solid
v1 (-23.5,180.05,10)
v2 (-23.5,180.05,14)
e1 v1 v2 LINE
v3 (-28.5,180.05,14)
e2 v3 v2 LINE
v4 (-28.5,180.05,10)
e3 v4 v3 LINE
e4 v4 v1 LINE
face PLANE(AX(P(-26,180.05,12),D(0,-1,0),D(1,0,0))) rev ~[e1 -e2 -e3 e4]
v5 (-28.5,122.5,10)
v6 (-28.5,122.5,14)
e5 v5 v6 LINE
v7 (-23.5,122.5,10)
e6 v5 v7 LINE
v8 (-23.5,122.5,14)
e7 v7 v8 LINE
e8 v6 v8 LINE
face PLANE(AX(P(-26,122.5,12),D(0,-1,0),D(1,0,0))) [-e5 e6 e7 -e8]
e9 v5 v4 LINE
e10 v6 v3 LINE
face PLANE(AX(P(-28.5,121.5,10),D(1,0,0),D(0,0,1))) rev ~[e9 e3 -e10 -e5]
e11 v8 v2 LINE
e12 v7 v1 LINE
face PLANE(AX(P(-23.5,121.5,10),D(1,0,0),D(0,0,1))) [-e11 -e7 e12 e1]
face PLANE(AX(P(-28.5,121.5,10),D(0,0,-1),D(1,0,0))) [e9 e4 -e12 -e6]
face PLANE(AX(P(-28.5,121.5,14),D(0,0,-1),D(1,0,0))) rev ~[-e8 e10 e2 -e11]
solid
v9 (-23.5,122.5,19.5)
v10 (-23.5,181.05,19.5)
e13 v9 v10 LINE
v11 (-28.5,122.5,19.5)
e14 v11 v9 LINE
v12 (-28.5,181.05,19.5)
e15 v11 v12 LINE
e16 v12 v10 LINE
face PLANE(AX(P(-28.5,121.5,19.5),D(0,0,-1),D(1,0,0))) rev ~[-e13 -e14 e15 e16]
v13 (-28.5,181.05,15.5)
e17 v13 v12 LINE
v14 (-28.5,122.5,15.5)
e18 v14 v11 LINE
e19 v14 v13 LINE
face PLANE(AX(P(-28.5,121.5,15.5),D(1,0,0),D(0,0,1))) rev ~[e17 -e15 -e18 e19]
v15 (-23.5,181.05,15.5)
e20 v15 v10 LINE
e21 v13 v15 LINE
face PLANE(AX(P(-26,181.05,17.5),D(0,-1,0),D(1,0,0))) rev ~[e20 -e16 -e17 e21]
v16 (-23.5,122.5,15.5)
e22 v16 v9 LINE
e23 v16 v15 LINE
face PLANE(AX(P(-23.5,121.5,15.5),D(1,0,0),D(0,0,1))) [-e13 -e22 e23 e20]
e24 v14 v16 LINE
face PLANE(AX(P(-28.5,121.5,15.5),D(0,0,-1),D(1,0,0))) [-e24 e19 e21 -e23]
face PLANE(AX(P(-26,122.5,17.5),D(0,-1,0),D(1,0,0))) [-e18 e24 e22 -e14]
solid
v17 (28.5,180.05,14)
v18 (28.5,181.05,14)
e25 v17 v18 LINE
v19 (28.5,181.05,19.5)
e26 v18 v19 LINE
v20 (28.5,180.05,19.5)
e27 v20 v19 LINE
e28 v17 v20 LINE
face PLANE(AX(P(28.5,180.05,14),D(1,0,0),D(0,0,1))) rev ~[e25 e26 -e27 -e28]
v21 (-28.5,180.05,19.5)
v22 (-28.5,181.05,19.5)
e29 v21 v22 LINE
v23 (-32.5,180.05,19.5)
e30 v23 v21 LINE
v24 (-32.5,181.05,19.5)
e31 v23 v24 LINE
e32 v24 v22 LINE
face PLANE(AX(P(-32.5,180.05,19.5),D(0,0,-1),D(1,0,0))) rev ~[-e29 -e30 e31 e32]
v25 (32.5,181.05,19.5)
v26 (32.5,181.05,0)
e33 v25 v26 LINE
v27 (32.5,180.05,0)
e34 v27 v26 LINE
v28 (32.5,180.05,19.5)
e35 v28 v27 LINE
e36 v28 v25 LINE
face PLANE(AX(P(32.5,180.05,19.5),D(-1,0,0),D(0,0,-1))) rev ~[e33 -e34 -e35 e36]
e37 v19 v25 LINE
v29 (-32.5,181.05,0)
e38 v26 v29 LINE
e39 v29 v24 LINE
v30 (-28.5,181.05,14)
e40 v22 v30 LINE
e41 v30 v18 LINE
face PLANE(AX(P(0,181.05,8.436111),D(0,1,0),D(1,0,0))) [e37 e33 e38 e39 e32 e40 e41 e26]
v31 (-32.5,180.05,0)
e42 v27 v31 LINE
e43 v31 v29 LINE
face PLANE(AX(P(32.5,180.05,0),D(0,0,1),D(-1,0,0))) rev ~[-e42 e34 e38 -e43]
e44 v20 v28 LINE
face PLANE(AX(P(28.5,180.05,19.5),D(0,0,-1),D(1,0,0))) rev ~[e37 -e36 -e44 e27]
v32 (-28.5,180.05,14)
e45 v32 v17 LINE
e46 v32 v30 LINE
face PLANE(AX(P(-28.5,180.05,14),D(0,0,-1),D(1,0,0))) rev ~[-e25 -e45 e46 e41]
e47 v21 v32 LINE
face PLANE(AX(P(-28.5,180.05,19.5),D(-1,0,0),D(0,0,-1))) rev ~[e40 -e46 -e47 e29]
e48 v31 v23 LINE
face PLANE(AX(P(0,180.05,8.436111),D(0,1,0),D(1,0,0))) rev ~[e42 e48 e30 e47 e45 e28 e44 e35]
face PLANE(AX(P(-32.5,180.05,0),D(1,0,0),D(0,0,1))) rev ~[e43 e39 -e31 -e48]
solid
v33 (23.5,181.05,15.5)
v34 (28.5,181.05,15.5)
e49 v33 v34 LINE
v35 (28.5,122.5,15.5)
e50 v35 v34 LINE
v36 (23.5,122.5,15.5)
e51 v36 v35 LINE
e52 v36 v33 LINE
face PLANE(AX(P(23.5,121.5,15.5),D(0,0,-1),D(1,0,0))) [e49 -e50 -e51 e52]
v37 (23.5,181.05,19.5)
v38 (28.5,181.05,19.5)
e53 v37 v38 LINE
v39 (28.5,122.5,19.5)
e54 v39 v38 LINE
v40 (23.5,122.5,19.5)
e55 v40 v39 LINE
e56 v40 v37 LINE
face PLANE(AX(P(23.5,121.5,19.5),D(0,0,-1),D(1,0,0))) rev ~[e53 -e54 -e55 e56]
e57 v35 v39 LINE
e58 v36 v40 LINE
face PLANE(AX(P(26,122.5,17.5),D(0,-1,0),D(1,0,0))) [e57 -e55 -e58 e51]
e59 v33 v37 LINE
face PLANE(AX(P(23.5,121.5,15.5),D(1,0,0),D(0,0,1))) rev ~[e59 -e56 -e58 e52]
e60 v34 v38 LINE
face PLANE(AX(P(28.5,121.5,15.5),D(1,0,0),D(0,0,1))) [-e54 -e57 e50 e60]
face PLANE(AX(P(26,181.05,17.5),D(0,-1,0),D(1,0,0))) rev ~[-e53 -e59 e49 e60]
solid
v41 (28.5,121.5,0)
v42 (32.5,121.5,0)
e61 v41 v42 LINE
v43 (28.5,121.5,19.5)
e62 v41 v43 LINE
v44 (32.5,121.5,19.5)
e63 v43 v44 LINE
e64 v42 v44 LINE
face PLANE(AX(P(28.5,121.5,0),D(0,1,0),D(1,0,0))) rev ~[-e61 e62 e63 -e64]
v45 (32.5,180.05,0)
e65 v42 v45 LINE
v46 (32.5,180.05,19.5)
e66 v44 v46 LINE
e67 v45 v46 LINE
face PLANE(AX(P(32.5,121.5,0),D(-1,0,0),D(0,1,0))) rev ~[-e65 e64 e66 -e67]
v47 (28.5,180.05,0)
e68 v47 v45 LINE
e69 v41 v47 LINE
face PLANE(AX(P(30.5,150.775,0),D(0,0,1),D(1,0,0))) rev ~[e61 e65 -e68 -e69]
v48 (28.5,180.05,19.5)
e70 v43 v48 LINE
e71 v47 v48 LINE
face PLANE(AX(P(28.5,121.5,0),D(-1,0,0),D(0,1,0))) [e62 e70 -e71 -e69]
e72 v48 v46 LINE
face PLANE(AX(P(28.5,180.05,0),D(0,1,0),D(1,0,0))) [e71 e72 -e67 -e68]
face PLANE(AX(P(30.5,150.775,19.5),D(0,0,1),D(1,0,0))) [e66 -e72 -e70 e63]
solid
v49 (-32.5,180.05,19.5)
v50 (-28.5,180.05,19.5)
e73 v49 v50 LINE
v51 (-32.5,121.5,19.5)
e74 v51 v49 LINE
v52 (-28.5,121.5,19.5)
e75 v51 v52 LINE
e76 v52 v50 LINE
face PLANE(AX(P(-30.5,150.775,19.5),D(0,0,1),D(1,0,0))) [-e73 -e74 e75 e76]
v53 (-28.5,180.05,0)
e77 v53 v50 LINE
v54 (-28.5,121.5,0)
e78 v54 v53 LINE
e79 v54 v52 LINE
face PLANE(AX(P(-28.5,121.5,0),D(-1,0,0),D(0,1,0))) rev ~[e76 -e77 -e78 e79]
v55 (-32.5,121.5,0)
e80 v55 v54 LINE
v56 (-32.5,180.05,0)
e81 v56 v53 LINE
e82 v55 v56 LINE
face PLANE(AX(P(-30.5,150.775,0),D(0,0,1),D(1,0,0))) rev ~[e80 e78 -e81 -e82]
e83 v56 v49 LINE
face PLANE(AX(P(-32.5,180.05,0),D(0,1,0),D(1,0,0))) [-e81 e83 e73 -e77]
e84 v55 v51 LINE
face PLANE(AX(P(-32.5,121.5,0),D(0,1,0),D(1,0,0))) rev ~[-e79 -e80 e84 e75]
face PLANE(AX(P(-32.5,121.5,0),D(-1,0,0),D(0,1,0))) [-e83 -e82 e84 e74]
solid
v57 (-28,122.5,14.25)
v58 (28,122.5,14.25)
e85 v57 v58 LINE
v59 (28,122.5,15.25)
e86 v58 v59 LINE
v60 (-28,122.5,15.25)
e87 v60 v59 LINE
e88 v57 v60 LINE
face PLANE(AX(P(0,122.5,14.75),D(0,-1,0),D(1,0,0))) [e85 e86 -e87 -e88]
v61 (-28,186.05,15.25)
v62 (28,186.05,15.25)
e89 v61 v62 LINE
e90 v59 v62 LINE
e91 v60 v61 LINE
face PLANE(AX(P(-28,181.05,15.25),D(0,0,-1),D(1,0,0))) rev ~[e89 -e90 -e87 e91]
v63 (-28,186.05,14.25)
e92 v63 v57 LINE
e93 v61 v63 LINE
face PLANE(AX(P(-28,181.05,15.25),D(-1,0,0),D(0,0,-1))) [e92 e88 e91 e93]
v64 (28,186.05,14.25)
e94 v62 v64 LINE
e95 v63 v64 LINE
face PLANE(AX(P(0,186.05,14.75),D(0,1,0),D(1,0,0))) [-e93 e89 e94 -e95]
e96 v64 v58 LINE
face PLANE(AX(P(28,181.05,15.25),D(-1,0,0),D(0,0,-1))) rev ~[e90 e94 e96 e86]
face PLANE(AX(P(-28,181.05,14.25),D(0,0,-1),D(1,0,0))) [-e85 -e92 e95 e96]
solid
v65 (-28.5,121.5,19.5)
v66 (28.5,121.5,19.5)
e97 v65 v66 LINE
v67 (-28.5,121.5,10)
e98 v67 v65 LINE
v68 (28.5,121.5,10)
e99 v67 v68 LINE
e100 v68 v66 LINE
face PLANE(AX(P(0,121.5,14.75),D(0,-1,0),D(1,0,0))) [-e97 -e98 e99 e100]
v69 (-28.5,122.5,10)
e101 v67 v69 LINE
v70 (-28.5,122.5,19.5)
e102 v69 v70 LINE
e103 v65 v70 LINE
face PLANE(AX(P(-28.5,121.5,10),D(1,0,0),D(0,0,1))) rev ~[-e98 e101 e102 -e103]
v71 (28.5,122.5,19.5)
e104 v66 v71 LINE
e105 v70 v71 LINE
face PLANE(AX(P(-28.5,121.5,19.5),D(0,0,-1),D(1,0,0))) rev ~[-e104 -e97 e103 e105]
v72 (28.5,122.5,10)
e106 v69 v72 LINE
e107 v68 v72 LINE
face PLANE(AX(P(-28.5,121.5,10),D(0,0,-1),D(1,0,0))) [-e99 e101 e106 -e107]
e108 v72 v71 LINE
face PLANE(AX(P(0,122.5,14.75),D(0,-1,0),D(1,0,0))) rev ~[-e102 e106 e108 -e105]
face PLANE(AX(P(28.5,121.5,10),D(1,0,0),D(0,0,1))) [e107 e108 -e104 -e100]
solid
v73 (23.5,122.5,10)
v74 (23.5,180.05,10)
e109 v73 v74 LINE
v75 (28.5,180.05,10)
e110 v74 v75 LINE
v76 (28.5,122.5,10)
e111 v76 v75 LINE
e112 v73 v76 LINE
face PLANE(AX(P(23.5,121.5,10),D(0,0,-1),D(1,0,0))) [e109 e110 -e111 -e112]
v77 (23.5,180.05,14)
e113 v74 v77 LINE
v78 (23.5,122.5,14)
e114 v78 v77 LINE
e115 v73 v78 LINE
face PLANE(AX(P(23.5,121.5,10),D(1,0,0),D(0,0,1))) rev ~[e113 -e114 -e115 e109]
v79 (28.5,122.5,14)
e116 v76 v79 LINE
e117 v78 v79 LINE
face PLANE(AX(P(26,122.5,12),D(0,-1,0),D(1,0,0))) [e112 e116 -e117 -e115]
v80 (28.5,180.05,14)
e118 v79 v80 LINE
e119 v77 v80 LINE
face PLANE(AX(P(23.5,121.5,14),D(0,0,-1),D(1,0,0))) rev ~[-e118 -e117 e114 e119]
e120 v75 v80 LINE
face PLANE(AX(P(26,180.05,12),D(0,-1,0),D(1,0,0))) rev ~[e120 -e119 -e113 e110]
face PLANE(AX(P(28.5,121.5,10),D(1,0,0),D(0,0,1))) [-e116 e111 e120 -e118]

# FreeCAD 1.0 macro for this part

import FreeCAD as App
import Part
import Sketcher


def add_polygon(sketch, points):
    """Adds a closed chain of lines whose ends are joined by coincident constraints."""
    first, n = sketch.GeometryCount, len(points)
    for a, b in zip(points, points[1:] + points[:1]):
        sketch.addGeometry(Part.LineSegment(App.Vector(*a, 0), App.Vector(*b, 0)), False)
    for i in range(n):
        sketch.addConstraint(Sketcher.Constraint("Coincident", first + i, 2, first + (i + 1) % n, 1))

doc = App.newDocument("Part")
body = doc.addObject("PartDesign::Body", "Body")

# Sketch on XY plane
sketch1 = body.newObject("Sketcher::SketchObject", "Sketch")
sketch1.AttachmentSupport = (doc.getObject("XY_Plane"), [""])
sketch1.MapMode = "FlatFace"
add_polygon(sketch1, [(-32.5, 180.1), (-32.5, 121.5), (-28.5, 121.5), (-28.5, 180.1)])  # lines 0-3
sketch1.addConstraint([
    Sketcher.Constraint("Vertical", 0),
    Sketcher.Constraint("Horizontal", 1),
    Sketcher.Constraint("Vertical", 2),
    Sketcher.Constraint("Horizontal", 3),
    Sketcher.Constraint("DistanceX", 1, 1, 1, 2, 4.0),
    Sketcher.Constraint("DistanceY", 0, 2, 0, 1, 58.55),
    Sketcher.Constraint("DistanceX", 0, 2, -1, 1, 32.5),
    Sketcher.Constraint("DistanceY", -1, 1, 0, 2, 121.5),
])
pad1 = body.newObject("PartDesign::Pad", "Pad")
pad1.Profile = sketch1
pad1.Length = 19.5
body2 = doc.addObject("PartDesign::Body", "Body001")

# Sketch on XY plane
sketch2 = body2.newObject("Sketcher::SketchObject", "Sketch001")
sketch2.AttachmentSupport = (doc.getObject("XY_Plane001"), [""])
sketch2.MapMode = "FlatFace"
add_polygon(sketch2, [(28.5, 180.1), (28.5, 121.5), (32.5, 121.5), (32.5, 180.1)])  # lines 0-3
sketch2.addConstraint([
    Sketcher.Constraint("Vertical", 0),
    Sketcher.Constraint("Horizontal", 1),
    Sketcher.Constraint("Vertical", 2),
    Sketcher.Constraint("Horizontal", 3),
    Sketcher.Constraint("DistanceX", 1, 1, 1, 2, 4.0),
    Sketcher.Constraint("DistanceY", 0, 2, 0, 1, 58.55),
    Sketcher.Constraint("DistanceX", -1, 1, 0, 2, 28.5),
    Sketcher.Constraint("DistanceY", -1, 1, 0, 2, 121.5),
])
pad2 = body2.newObject("PartDesign::Pad", "Pad001")
pad2.Profile = sketch2
pad2.Length = 19.5
body3 = doc.addObject("PartDesign::Body", "Body002")

# Sketch on XZ plane
sketch3 = body3.newObject("Sketcher::SketchObject", "Sketch002")
sketch3.AttachmentSupport = (doc.getObject("XZ_Plane002"), [""])
sketch3.MapMode = "FlatFace"
sketch3.AttachmentOffset = App.Placement(App.Vector(0, 0, -180.05), App.Rotation())
add_polygon(sketch3, [(-32.5, 0), (-32.5, 19.5), (-28.5, 19.5), (-28.5, 14), (28.5, 14), (28.5, 19.5), (32.5, 19.5), (32.5, 0)])  # lines 0-7
sketch3.addConstraint([
    Sketcher.Constraint("Vertical", 0),
    Sketcher.Constraint("Horizontal", 1),
    Sketcher.Constraint("Vertical", 2),
    Sketcher.Constraint("Horizontal", 3),
    Sketcher.Constraint("Vertical", 4),
    Sketcher.Constraint("Horizontal", 5),
    Sketcher.Constraint("Vertical", 6),
    Sketcher.Constraint("Horizontal", 7),
    Sketcher.Constraint("Symmetric", 6, 2, 7, 2, -1, 1),
    Sketcher.Constraint("Symmetric", 1, 2, 4, 2, -2),
    Sketcher.Constraint("DistanceX", 1, 1, 1, 2, 4.0),
    Sketcher.Constraint("DistanceX", 3, 1, 3, 2, 57.0),
    Sketcher.Constraint("DistanceY", 0, 1, 0, 2, 19.5),
    Sketcher.Constraint("DistanceY", 2, 2, 2, 1, 5.5),
])
pad3 = body3.newObject("PartDesign::Pad", "Pad002")
pad3.Profile = sketch3
pad3.Length = 1
pad3.Reversed = True
body4 = doc.addObject("PartDesign::Body", "Body003")

# Sketch on XZ plane
sketch4 = body4.newObject("Sketcher::SketchObject", "Sketch003")
sketch4.AttachmentSupport = (doc.getObject("XZ_Plane003"), [""])
sketch4.MapMode = "FlatFace"
sketch4.AttachmentOffset = App.Placement(App.Vector(0, 0, -121.5), App.Rotation())
add_polygon(sketch4, [(-28.5, 14), (-28.5, 10), (-23.5, 10), (-23.5, 14)])  # lines 0-3
sketch4.addConstraint([
    Sketcher.Constraint("Vertical", 0),
    Sketcher.Constraint("Horizontal", 1),
    Sketcher.Constraint("Vertical", 2),
    Sketcher.Constraint("Horizontal", 3),
    Sketcher.Constraint("DistanceX", 1, 1, 1, 2, 5.0),
    Sketcher.Constraint("DistanceY", 0, 2, 0, 1, 4.0),
    Sketcher.Constraint("DistanceY", -1, 1, 0, 2, 10.0),
    Sketcher.Constraint("DistanceX", 0, 2, -1, 1, 28.5),
])
pad4 = body4.newObject("PartDesign::Pad", "Pad003")
pad4.Profile = sketch4
pad4.Length = 58.55
pad4.Reversed = True
body5 = doc.addObject("PartDesign::Body", "Body004")

# Sketch on XZ plane
sketch5 = body5.newObject("Sketcher::SketchObject", "Sketch004")
sketch5.AttachmentSupport = (doc.getObject("XZ_Plane004"), [""])
sketch5.MapMode = "FlatFace"
sketch5.AttachmentOffset = App.Placement(App.Vector(0, 0, -121.5), App.Rotation())
add_polygon(sketch5, [(23.5, 14), (23.5, 10), (28.5, 10), (28.5, 14)])  # lines 0-3
sketch5.addConstraint([
    Sketcher.Constraint("Vertical", 0),
    Sketcher.Constraint("Horizontal", 1),
    Sketcher.Constraint("Vertical", 2),
    Sketcher.Constraint("Horizontal", 3),
    Sketcher.Constraint("DistanceX", 1, 1, 1, 2, 5.0),
    Sketcher.Constraint("DistanceY", 0, 2, 0, 1, 4.0),
    Sketcher.Constraint("DistanceY", -1, 1, 0, 2, 10.0),
    Sketcher.Constraint("DistanceX", -1, 1, 0, 2, 23.5),
])
pad5 = body5.newObject("PartDesign::Pad", "Pad004")
pad5.Profile = sketch5
pad5.Length = 58.55
pad5.Reversed = True
body6 = doc.addObject("PartDesign::Body", "Body005")

# Sketch on XZ plane
sketch6 = body6.newObject("Sketcher::SketchObject", "Sketch005")
sketch6.AttachmentSupport = (doc.getObject("XZ_Plane005"), [""])
sketch6.MapMode = "FlatFace"
sketch6.AttachmentOffset = App.Placement(App.Vector(0, 0, -121.5), App.Rotation())
add_polygon(sketch6, [(-28.5, 19.5), (-28.5, 15.5), (-23.5, 15.5), (-23.5, 19.5)])  # lines 0-3
sketch6.addConstraint([
    Sketcher.Constraint("Vertical", 0),
    Sketcher.Constraint("Horizontal", 1),
    Sketcher.Constraint("Vertical", 2),
    Sketcher.Constraint("Horizontal", 3),
    Sketcher.Constraint("DistanceX", 1, 1, 1, 2, 5.0),
    Sketcher.Constraint("DistanceY", 0, 2, 0, 1, 4.0),
    Sketcher.Constraint("DistanceX", 0, 2, -1, 1, 28.5),
    Sketcher.Constraint("DistanceY", -1, 1, 0, 2, 15.5),
])
pad6 = body6.newObject("PartDesign::Pad", "Pad005")
pad6.Profile = sketch6
pad6.Length = 59.55
pad6.Reversed = True
body7 = doc.addObject("PartDesign::Body", "Body006")

# Sketch on XZ plane
sketch7 = body7.newObject("Sketcher::SketchObject", "Sketch006")
sketch7.AttachmentSupport = (doc.getObject("XZ_Plane006"), [""])
sketch7.MapMode = "FlatFace"
sketch7.AttachmentOffset = App.Placement(App.Vector(0, 0, -121.5), App.Rotation())
add_polygon(sketch7, [(23.5, 19.5), (23.5, 15.5), (28.5, 15.5), (28.5, 19.5)])  # lines 0-3
sketch7.addConstraint([
    Sketcher.Constraint("Vertical", 0),
    Sketcher.Constraint("Horizontal", 1),
    Sketcher.Constraint("Vertical", 2),
    Sketcher.Constraint("Horizontal", 3),
    Sketcher.Constraint("DistanceX", 1, 1, 1, 2, 5.0),
    Sketcher.Constraint("DistanceY", 0, 2, 0, 1, 4.0),
    Sketcher.Constraint("DistanceX", -1, 1, 0, 2, 23.5),
    Sketcher.Constraint("DistanceY", -1, 1, 0, 2, 15.5),
])
pad7 = body7.newObject("PartDesign::Pad", "Pad006")
pad7.Profile = sketch7
pad7.Length = 59.55
pad7.Reversed = True
body8 = doc.addObject("PartDesign::Body", "Body007")

# Sketch on XZ plane
sketch8 = body8.newObject("Sketcher::SketchObject", "Sketch007")
sketch8.AttachmentSupport = (doc.getObject("XZ_Plane007"), [""])
sketch8.MapMode = "FlatFace"
sketch8.AttachmentOffset = App.Placement(App.Vector(0, 0, -181.05), App.Rotation())
add_polygon(sketch8, [(-28, 14.2), (-28, 15.2), (28, 15.2), (28, 14.2)])  # lines 0-3
sketch8.addConstraint([
    Sketcher.Constraint("Vertical", 0),
    Sketcher.Constraint("Horizontal", 1),
    Sketcher.Constraint("Vertical", 2),
    Sketcher.Constraint("Horizontal", 3),
    Sketcher.Constraint("DistanceX", 1, 1, 1, 2, 56.0),
    Sketcher.Constraint("DistanceY", 0, 1, 0, 2, 1.0),
    Sketcher.Constraint("DistanceX", 0, 2, -1, 1, 28.0),
    Sketcher.Constraint("DistanceY", -1, 1, 0, 2, 15.25),
])
pad8 = body8.newObject("PartDesign::Pad", "Pad007")
pad8.Profile = sketch8
pad8.Length = 59.55

# Sketch on XZ plane
sketch9 = body8.newObject("Sketcher::SketchObject", "Sketch008")
sketch9.AttachmentSupport = (doc.getObject("XZ_Plane007"), [""])
sketch9.MapMode = "FlatFace"
sketch9.AttachmentOffset = App.Placement(App.Vector(0, 0, -181.05), App.Rotation())
add_polygon(sketch9, [(-28, 14.2), (-28, 15.2), (28, 15.2), (28, 14.2)])  # lines 0-3
sketch9.addConstraint([
    Sketcher.Constraint("Vertical", 0),
    Sketcher.Constraint("Horizontal", 1),
    Sketcher.Constraint("Vertical", 2),
    Sketcher.Constraint("Horizontal", 3),
    Sketcher.Constraint("DistanceX", 1, 1, 1, 2, 56.0),
    Sketcher.Constraint("DistanceY", 0, 1, 0, 2, 1.0),
    Sketcher.Constraint("DistanceX", 0, 2, -1, 1, 28.0),
    Sketcher.Constraint("DistanceY", -1, 1, 0, 2, 15.25),
])
pad9 = body8.newObject("PartDesign::Pad", "Pad008")
pad9.Profile = sketch9
pad9.Length = 5
pad9.Reversed = True

# Sketch on XZ plane
sketch10 = body8.newObject("Sketcher::SketchObject", "Sketch009")
sketch10.AttachmentSupport = (doc.getObject("XZ_Plane007"), [""])
sketch10.MapMode = "FlatFace"
sketch10.AttachmentOffset = App.Placement(App.Vector(0, 0, -121.5), App.Rotation())
add_polygon(sketch10, [(-28, 15.2), (-28, 14.2), (28, 14.2), (28, 15.2)])  # lines 0-3
sketch10.addConstraint([
    Sketcher.Constraint("Vertical", 0),
    Sketcher.Constraint("Horizontal", 1),
    Sketcher.Constraint("Vertical", 2),
    Sketcher.Constraint("Horizontal", 3),
    Sketcher.Constraint("DistanceX", 1, 1, 1, 2, 56.0),
    Sketcher.Constraint("DistanceY", 0, 2, 0, 1, 1.0),
    Sketcher.Constraint("DistanceX", 0, 2, -1, 1, 28.0),
    Sketcher.Constraint("DistanceY", -1, 1, 0, 2, 14.25),
])
pocket1 = body8.newObject("PartDesign::Pocket", "Pocket")
pocket1.Profile = sketch10
pocket1.Length = 1
body9 = doc.addObject("PartDesign::Body", "Body008")
body9.AllowCompound = True

# Sketch on XZ plane
sketch11 = body9.newObject("Sketcher::SketchObject", "Sketch010")
sketch11.AttachmentSupport = (doc.getObject("XZ_Plane008"), [""])
sketch11.MapMode = "FlatFace"
sketch11.AttachmentOffset = App.Placement(App.Vector(0, 0, -121.5), App.Rotation())
add_polygon(sketch11, [(-28.5, 19.5), (-28.5, 15.5), (-23.5, 15.5), (-23.5, 19.5)])  # lines 0-3
add_polygon(sketch11, [(-28.5, 14), (-28.5, 10), (-23.5, 10), (-23.5, 14)])  # lines 4-7
add_polygon(sketch11, [(23.5, 14), (23.5, 10), (28.5, 10), (28.5, 14)])  # lines 8-11
add_polygon(sketch11, [(23.5, 19.5), (23.5, 15.5), (28.5, 15.5), (28.5, 19.5)])  # lines 12-15
sketch11.addConstraint([
    Sketcher.Constraint("Vertical", 0),
    Sketcher.Constraint("Horizontal", 1),
    Sketcher.Constraint("Vertical", 2),
    Sketcher.Constraint("Horizontal", 3),
    Sketcher.Constraint("Vertical", 4),
    Sketcher.Constraint("Horizontal", 5),
    Sketcher.Constraint("Vertical", 6),
    Sketcher.Constraint("Horizontal", 7),
    Sketcher.Constraint("Vertical", 8),
    Sketcher.Constraint("Horizontal", 9),
    Sketcher.Constraint("Vertical", 10),
    Sketcher.Constraint("Horizontal", 11),
    Sketcher.Constraint("Vertical", 12),
    Sketcher.Constraint("Horizontal", 13),
    Sketcher.Constraint("Vertical", 14),
    Sketcher.Constraint("Horizontal", 15),
    Sketcher.Constraint("Symmetric", 5, 2, 8, 2, -2),
    Sketcher.Constraint("Symmetric", 7, 2, 10, 2, -2),
    Sketcher.Constraint("Symmetric", 1, 2, 12, 2, -2),
    Sketcher.Constraint("Symmetric", 3, 2, 14, 2, -2),
    Sketcher.Constraint("Vertical", 3, 2, 4, 2),
    Sketcher.Constraint("Vertical", 2, 2, 5, 2),
    Sketcher.Constraint("Equal", 2, 4),
    Sketcher.Constraint("DistanceX", 1, 1, 1, 2, 5.0),
    Sketcher.Constraint("DistanceY", 0, 2, 0, 1, 4.0),
    Sketcher.Constraint("DistanceY", -1, 1, 4, 2, 10.0),
    Sketcher.Constraint("DistanceX", 5, 2, 8, 2, 47.0),
    Sketcher.Constraint("DistanceY", -1, 1, 0, 2, 15.5),
])
pad10 = body9.newObject("PartDesign::Pad", "Pad009")
pad10.Profile = sketch11
pad10.Length = 1
pad10.Reversed = True
doc.recompute()

body10 = doc.addObject("PartDesign::Body", "Body009")
body10.BaseFeature = body9
boolean = body4.newObject("PartDesign::Boolean", "Boolean")
boolean.Type = "Cut"
boolean.addObjects([body10])
doc.recompute()

body11 = doc.addObject("PartDesign::Body", "Body010")
body11.BaseFeature = body9
boolean2 = body5.newObject("PartDesign::Boolean", "Boolean001")
boolean2.Type = "Cut"
boolean2.addObjects([body11])
doc.recompute()

body12 = doc.addObject("PartDesign::Body", "Body011")
body12.BaseFeature = body9
boolean3 = body6.newObject("PartDesign::Boolean", "Boolean002")
boolean3.Type = "Cut"
boolean3.addObjects([body12])
doc.recompute()

boolean4 = body7.newObject("PartDesign::Boolean", "Boolean003")
boolean4.Type = "Cut"
boolean4.addObjects([body9])
body13 = doc.addObject("PartDesign::Body", "Body012")

# Sketch on XZ plane
sketch12 = body13.newObject("Sketcher::SketchObject", "Sketch011")
sketch12.AttachmentSupport = (doc.getObject("XZ_Plane012"), [""])
sketch12.MapMode = "FlatFace"
sketch12.AttachmentOffset = App.Placement(App.Vector(0, 0, -121.5), App.Rotation())
add_polygon(sketch12, [(-28, 20), (-28, 10), (28, 10), (28, 20)])  # lines 0-3
sketch12.addConstraint([
    Sketcher.Constraint("Vertical", 0),
    Sketcher.Constraint("Horizontal", 1),
    Sketcher.Constraint("Vertical", 2),
    Sketcher.Constraint("Horizontal", 3),
    Sketcher.Constraint("DistanceX", 1, 1, 1, 2, 57.0),
    Sketcher.Constraint("DistanceY", 0, 2, 0, 1, 9.5),
    Sketcher.Constraint("DistanceY", -1, 1, 0, 2, 10.0),
    Sketcher.Constraint("DistanceX", 0, 2, -1, 1, 28.5),
])
pad11 = body13.newObject("PartDesign::Pad", "Pad010")
pad11.Profile = sketch12
pad11.Length = 1
pad11.Reversed = True
body14 = doc.addObject("PartDesign::Body", "Body013")

# Sketch on XZ plane
sketch13 = body14.newObject("Sketcher::SketchObject", "Sketch012")
sketch13.AttachmentSupport = (doc.getObject("XZ_Plane013"), [""])
sketch13.MapMode = "FlatFace"
sketch13.AttachmentOffset = App.Placement(App.Vector(0, 0, -121.5), App.Rotation())
add_polygon(sketch13, [(-28, 20), (-28, 10), (28, 10), (28, 20)])  # lines 0-3
sketch13.addConstraint([
    Sketcher.Constraint("Vertical", 0),
    Sketcher.Constraint("Horizontal", 1),
    Sketcher.Constraint("Vertical", 2),
    Sketcher.Constraint("Horizontal", 3),
    Sketcher.Constraint("DistanceX", 1, 1, 1, 2, 57.0),
    Sketcher.Constraint("DistanceY", 0, 2, 0, 1, 9.5),
    Sketcher.Constraint("DistanceY", -1, 1, 0, 2, 10.0),
    Sketcher.Constraint("DistanceX", 0, 2, -1, 1, 28.5),
])
pad12 = body14.newObject("PartDesign::Pad", "Pad011")
pad12.Profile = sketch13
pad12.Length = 1
pad12.Reversed = True
body13.Visibility = False

doc.recompute()
